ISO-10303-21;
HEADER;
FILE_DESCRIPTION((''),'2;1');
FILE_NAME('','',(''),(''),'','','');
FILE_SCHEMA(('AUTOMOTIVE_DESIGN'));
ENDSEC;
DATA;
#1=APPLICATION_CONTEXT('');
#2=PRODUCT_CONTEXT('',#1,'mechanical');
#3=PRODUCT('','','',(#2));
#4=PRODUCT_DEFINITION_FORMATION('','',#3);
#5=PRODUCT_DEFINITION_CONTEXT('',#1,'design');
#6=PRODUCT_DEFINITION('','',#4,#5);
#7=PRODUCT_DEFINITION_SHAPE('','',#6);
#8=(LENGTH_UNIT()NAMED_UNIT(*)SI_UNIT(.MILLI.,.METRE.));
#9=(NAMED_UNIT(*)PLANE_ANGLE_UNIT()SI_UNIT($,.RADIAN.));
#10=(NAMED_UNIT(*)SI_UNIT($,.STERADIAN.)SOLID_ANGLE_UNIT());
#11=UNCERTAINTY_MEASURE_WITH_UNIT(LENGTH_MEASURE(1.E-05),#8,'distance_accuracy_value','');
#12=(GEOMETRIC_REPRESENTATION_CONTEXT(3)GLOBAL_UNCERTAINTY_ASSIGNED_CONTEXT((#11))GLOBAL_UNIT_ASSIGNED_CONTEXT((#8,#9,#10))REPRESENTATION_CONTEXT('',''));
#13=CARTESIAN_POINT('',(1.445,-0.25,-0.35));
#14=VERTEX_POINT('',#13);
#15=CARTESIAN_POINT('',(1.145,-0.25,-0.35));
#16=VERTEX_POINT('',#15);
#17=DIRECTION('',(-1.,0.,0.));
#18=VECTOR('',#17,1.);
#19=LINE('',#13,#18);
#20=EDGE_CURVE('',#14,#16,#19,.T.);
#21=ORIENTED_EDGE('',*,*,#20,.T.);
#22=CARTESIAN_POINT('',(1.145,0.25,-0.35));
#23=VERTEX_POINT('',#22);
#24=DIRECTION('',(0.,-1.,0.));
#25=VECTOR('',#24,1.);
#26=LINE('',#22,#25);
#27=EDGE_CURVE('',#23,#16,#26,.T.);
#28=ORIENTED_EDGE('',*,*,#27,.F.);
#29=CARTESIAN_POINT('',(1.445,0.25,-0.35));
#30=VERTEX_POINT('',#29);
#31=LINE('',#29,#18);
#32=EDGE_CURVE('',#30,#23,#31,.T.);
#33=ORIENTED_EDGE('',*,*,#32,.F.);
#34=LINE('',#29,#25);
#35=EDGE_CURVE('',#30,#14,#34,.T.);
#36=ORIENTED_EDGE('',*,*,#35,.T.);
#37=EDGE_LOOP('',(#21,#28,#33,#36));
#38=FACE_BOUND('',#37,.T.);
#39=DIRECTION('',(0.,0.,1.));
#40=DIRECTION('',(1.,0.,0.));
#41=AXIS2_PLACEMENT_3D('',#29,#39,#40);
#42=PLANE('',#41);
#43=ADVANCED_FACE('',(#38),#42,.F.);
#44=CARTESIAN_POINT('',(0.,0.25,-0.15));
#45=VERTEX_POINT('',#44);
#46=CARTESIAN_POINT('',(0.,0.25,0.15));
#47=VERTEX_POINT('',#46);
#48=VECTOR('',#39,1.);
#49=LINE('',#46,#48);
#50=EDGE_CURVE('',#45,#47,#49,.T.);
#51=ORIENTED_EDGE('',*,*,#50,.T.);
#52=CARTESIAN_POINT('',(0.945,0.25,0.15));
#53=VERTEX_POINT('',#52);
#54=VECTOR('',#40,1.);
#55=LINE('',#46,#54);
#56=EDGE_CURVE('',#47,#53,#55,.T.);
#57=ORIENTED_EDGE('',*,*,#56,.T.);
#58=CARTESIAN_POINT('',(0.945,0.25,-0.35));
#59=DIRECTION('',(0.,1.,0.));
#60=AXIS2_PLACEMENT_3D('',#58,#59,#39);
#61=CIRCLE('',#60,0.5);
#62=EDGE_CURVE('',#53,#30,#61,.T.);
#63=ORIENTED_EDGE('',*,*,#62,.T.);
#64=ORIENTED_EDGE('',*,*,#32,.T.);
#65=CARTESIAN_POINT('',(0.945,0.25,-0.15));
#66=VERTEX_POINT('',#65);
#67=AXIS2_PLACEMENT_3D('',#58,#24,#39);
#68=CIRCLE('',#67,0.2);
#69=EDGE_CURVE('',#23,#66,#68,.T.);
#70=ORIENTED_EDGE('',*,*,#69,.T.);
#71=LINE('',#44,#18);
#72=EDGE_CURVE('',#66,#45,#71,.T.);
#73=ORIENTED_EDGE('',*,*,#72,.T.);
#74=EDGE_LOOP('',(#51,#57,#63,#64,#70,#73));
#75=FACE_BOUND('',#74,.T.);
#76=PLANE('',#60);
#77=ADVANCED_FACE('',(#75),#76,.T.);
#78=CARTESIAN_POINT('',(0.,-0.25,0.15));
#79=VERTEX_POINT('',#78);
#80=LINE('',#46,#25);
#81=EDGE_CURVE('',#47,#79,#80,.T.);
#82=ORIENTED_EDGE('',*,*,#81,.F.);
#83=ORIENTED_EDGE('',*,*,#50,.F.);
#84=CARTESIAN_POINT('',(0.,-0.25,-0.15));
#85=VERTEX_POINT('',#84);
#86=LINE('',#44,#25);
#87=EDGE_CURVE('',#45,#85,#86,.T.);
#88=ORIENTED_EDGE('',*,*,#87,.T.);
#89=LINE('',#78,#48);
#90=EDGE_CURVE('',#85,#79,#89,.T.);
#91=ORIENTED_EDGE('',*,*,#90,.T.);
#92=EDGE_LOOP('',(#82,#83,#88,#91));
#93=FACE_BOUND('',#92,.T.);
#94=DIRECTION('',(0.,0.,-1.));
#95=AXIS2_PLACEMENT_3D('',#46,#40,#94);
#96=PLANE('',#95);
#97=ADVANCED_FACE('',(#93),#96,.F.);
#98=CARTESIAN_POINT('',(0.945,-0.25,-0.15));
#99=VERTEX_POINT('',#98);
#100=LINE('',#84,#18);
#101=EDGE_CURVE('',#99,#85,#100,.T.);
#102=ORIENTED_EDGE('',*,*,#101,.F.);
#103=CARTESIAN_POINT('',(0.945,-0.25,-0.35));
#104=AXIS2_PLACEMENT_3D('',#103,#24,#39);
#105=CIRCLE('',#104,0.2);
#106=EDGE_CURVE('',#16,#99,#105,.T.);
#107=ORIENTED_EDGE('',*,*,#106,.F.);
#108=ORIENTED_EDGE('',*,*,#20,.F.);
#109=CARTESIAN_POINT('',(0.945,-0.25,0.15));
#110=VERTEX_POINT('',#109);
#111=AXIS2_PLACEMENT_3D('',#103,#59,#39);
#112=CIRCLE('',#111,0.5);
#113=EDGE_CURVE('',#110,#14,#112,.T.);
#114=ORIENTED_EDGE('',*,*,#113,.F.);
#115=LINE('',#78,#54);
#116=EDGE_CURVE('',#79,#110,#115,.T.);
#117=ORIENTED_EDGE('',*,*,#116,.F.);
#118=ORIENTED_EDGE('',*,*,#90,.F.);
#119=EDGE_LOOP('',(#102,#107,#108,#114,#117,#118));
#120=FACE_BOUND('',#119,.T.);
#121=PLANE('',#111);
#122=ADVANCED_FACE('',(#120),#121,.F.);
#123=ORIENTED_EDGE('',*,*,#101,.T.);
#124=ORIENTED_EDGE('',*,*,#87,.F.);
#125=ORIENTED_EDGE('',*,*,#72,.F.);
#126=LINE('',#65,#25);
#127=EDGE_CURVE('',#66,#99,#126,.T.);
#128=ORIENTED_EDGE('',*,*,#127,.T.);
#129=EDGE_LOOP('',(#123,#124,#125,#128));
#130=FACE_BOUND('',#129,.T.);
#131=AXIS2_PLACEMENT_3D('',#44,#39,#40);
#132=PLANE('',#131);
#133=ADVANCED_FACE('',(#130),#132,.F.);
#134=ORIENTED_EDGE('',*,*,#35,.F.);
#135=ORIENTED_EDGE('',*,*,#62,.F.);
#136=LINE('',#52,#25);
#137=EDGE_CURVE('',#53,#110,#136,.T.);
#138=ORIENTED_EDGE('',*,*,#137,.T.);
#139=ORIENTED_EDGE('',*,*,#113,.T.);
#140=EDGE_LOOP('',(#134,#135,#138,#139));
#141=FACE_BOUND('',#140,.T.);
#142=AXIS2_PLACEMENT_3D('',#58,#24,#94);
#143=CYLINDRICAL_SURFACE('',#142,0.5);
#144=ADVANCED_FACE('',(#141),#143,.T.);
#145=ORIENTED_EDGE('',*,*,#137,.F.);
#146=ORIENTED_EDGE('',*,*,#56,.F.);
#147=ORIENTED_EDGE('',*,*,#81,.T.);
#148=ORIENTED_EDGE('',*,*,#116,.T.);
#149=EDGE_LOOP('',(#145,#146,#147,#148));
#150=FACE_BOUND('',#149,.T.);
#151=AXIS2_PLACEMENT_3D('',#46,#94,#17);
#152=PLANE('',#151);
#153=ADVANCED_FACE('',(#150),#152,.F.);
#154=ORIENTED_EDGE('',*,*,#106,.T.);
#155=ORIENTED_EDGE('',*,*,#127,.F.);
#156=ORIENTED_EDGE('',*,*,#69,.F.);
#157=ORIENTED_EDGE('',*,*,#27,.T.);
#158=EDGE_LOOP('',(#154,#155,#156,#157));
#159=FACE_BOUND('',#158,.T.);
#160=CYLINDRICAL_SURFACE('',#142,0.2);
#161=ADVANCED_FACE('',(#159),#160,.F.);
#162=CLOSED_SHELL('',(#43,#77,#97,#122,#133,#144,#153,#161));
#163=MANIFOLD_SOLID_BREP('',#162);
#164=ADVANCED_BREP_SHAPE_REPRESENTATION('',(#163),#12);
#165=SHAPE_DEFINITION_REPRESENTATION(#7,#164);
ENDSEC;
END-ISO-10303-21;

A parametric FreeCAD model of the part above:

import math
import FreeCAD as App
import Part
import Sketcher
from FreeCAD import Vector
Q = App.Units.Quantity

doc = App.newDocument("Part")
body = doc.addObject("PartDesign::Body", "Body")

sketch1 = body.newObject("Sketcher::SketchObject", "Sketch")
sketch1.AttachmentSupport = (doc.getObject("XZ_Plane"), [""])
sketch1.MapMode = "FlatFace"
sketch1.addGeometry([
    Part.LineSegment(Vector(0, 0.15, 0), Vector(0.94, 0.15, 0)),
    Part.ArcOfCircle(Part.Circle(Vector(0.95, -0.35, 0), Vector(0, 0, 1), 0.5), math.radians(0), math.radians(90)),
    Part.LineSegment(Vector(1.45, -0.35, 0), Vector(1.15, -0.35, 0)),
    Part.ArcOfCircle(Part.Circle(Vector(0.94, -0.35, 0), Vector(0, 0, 1), 0.2), math.radians(0), math.radians(90)),
    Part.LineSegment(Vector(0.94, -0.15, 0), Vector(0, -0.15, 0)),
    Part.LineSegment(Vector(0, -0.15, 0), Vector(0, 0.15, 0)),
], False)
sketch1.addConstraint([
    Sketcher.Constraint("Tangent", 0, 2, 1, 2),
    Sketcher.Constraint("Coincident", 1, 1, 2, 1),
    Sketcher.Constraint("Coincident", 2, 2, 3, 1),
    Sketcher.Constraint("Tangent", 3, 2, 4, 1),
    Sketcher.Constraint("Coincident", 4, 2, 5, 1),
    Sketcher.Constraint("Coincident", 5, 2, 0, 1),
    Sketcher.Constraint("Horizontal", 0),
    Sketcher.Constraint("Horizontal", 2),
    Sketcher.Constraint("Horizontal", 4),
    Sketcher.Constraint("Vertical", 5),
    Sketcher.Constraint("Coincident", 3, 3, 1, 3),
    Sketcher.Constraint("Symmetric", 4, 2, 5, 2, -1, 1),
    Sketcher.Constraint("Horizontal", 3, 3, 1, 1),
    Sketcher.Constraint("Radius", 1, Q("0.5 mm")),
    Sketcher.Constraint("Radius", 3, Q("0.2 mm")),
    Sketcher.Constraint("DistanceX", 0, 1, 0, 2, Q("0.945 mm")),
])
pad1 = body.newObject("PartDesign::Pad", "Pad")
pad1.Profile = sketch1
pad1.Length = 0.5
pad1.Midplane = True

doc.recompute()
